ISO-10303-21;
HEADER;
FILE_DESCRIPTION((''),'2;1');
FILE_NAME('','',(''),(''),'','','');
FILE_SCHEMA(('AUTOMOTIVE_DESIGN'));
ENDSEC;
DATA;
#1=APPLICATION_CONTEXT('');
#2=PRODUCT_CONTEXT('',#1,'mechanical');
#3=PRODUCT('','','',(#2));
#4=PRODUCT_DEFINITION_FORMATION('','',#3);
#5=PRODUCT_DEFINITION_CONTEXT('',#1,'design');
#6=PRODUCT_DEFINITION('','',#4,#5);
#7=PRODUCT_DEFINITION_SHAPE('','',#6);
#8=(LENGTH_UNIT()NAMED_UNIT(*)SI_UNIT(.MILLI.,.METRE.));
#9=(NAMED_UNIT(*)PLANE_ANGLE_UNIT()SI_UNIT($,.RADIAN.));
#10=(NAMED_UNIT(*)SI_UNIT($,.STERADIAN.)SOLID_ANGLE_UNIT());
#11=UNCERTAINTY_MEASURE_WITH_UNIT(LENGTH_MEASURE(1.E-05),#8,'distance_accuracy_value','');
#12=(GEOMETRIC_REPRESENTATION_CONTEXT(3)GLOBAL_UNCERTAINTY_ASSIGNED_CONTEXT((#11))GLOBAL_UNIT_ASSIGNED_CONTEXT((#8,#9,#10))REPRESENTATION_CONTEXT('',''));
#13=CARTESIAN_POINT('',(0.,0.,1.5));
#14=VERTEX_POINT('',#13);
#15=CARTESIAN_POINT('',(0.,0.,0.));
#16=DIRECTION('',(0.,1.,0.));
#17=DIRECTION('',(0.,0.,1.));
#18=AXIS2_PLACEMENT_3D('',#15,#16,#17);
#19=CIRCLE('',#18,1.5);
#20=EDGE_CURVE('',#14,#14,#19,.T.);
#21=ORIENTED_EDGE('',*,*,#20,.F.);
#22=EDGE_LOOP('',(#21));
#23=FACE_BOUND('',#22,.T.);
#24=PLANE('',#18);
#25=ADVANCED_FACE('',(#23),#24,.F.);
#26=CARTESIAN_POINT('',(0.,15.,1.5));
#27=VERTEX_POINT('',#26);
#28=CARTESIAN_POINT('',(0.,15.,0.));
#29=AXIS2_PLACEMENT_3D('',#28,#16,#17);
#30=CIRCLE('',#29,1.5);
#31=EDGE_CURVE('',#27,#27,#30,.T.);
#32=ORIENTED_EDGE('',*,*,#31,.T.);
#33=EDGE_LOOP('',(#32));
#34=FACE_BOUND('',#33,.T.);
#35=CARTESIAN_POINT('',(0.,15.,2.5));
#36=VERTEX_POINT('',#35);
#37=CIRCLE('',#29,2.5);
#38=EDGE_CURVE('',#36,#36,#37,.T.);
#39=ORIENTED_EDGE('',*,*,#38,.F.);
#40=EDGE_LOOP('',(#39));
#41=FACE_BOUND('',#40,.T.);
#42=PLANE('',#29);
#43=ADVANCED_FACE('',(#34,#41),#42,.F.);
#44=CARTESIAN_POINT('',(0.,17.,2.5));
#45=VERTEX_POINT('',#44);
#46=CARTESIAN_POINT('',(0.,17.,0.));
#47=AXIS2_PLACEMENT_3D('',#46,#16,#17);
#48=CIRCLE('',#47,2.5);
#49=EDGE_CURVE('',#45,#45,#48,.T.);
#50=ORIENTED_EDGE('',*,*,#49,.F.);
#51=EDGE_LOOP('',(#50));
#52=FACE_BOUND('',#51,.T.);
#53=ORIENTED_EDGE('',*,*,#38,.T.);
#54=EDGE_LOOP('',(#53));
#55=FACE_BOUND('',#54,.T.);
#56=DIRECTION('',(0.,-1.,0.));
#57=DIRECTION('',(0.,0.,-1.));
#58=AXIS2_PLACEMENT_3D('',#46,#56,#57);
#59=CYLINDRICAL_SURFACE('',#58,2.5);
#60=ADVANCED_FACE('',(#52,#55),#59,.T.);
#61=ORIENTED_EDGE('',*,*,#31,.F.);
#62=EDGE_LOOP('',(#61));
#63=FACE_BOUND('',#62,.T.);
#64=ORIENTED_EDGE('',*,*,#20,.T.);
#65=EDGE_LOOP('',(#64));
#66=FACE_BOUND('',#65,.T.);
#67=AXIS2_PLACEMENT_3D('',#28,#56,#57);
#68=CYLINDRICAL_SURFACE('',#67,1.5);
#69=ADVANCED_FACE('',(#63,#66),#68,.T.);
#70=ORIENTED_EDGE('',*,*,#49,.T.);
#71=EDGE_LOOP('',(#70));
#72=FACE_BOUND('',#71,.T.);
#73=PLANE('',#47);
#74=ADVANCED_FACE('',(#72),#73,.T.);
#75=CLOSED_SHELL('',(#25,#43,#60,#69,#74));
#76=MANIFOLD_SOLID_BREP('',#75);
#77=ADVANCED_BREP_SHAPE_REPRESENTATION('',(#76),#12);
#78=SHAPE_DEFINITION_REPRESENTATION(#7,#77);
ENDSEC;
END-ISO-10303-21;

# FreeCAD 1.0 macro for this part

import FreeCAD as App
import Part
import Sketcher

V = App.Vector

doc = App.newDocument("Part")
body = doc.addObject("PartDesign::Body", "Body")

sketch1 = doc.addObject("Sketcher::SketchObject", "Sketch")
body.addObject(sketch1)
sketch1.AttachmentSupport = (doc.XZ_Plane, [""])
sketch1.MapMode = "FlatFace"
sketch1.addGeometry(Part.Circle(V(0, 0, 0), V(0, 0, 1), 1.5), False)
sketch1.addConstraint([
    Sketcher.Constraint("Coincident", 0, 3, -1, 1),
    Sketcher.Constraint("Diameter", 0, 3.0),
])
pad1 = doc.addObject("PartDesign::Pad", "Pad")
body.addObject(pad1)
pad1.Profile = sketch1
pad1.Length = 15
pad1.Reversed = True

sketch2 = doc.addObject("Sketcher::SketchObject", "Sketch001")
body.addObject(sketch2)
sketch2.AttachmentSupport = (doc.XZ_Plane, [""])
sketch2.MapMode = "FlatFace"
sketch2.AttachmentOffset = App.Placement(V(0, 0, -15), App.Rotation())
sketch2.addGeometry(Part.Circle(V(0, 0, 0), V(0, 0, 1), 2.5), False)
sketch2.addConstraint([
    Sketcher.Constraint("Coincident", 0, 3, -1, 1),
    Sketcher.Constraint("Diameter", 0, 5.0),
])
pad2 = doc.addObject("PartDesign::Pad", "Pad001")
body.addObject(pad2)
pad2.Profile = sketch2
pad2.Length = 2
pad2.Reversed = True

doc.recompute()
